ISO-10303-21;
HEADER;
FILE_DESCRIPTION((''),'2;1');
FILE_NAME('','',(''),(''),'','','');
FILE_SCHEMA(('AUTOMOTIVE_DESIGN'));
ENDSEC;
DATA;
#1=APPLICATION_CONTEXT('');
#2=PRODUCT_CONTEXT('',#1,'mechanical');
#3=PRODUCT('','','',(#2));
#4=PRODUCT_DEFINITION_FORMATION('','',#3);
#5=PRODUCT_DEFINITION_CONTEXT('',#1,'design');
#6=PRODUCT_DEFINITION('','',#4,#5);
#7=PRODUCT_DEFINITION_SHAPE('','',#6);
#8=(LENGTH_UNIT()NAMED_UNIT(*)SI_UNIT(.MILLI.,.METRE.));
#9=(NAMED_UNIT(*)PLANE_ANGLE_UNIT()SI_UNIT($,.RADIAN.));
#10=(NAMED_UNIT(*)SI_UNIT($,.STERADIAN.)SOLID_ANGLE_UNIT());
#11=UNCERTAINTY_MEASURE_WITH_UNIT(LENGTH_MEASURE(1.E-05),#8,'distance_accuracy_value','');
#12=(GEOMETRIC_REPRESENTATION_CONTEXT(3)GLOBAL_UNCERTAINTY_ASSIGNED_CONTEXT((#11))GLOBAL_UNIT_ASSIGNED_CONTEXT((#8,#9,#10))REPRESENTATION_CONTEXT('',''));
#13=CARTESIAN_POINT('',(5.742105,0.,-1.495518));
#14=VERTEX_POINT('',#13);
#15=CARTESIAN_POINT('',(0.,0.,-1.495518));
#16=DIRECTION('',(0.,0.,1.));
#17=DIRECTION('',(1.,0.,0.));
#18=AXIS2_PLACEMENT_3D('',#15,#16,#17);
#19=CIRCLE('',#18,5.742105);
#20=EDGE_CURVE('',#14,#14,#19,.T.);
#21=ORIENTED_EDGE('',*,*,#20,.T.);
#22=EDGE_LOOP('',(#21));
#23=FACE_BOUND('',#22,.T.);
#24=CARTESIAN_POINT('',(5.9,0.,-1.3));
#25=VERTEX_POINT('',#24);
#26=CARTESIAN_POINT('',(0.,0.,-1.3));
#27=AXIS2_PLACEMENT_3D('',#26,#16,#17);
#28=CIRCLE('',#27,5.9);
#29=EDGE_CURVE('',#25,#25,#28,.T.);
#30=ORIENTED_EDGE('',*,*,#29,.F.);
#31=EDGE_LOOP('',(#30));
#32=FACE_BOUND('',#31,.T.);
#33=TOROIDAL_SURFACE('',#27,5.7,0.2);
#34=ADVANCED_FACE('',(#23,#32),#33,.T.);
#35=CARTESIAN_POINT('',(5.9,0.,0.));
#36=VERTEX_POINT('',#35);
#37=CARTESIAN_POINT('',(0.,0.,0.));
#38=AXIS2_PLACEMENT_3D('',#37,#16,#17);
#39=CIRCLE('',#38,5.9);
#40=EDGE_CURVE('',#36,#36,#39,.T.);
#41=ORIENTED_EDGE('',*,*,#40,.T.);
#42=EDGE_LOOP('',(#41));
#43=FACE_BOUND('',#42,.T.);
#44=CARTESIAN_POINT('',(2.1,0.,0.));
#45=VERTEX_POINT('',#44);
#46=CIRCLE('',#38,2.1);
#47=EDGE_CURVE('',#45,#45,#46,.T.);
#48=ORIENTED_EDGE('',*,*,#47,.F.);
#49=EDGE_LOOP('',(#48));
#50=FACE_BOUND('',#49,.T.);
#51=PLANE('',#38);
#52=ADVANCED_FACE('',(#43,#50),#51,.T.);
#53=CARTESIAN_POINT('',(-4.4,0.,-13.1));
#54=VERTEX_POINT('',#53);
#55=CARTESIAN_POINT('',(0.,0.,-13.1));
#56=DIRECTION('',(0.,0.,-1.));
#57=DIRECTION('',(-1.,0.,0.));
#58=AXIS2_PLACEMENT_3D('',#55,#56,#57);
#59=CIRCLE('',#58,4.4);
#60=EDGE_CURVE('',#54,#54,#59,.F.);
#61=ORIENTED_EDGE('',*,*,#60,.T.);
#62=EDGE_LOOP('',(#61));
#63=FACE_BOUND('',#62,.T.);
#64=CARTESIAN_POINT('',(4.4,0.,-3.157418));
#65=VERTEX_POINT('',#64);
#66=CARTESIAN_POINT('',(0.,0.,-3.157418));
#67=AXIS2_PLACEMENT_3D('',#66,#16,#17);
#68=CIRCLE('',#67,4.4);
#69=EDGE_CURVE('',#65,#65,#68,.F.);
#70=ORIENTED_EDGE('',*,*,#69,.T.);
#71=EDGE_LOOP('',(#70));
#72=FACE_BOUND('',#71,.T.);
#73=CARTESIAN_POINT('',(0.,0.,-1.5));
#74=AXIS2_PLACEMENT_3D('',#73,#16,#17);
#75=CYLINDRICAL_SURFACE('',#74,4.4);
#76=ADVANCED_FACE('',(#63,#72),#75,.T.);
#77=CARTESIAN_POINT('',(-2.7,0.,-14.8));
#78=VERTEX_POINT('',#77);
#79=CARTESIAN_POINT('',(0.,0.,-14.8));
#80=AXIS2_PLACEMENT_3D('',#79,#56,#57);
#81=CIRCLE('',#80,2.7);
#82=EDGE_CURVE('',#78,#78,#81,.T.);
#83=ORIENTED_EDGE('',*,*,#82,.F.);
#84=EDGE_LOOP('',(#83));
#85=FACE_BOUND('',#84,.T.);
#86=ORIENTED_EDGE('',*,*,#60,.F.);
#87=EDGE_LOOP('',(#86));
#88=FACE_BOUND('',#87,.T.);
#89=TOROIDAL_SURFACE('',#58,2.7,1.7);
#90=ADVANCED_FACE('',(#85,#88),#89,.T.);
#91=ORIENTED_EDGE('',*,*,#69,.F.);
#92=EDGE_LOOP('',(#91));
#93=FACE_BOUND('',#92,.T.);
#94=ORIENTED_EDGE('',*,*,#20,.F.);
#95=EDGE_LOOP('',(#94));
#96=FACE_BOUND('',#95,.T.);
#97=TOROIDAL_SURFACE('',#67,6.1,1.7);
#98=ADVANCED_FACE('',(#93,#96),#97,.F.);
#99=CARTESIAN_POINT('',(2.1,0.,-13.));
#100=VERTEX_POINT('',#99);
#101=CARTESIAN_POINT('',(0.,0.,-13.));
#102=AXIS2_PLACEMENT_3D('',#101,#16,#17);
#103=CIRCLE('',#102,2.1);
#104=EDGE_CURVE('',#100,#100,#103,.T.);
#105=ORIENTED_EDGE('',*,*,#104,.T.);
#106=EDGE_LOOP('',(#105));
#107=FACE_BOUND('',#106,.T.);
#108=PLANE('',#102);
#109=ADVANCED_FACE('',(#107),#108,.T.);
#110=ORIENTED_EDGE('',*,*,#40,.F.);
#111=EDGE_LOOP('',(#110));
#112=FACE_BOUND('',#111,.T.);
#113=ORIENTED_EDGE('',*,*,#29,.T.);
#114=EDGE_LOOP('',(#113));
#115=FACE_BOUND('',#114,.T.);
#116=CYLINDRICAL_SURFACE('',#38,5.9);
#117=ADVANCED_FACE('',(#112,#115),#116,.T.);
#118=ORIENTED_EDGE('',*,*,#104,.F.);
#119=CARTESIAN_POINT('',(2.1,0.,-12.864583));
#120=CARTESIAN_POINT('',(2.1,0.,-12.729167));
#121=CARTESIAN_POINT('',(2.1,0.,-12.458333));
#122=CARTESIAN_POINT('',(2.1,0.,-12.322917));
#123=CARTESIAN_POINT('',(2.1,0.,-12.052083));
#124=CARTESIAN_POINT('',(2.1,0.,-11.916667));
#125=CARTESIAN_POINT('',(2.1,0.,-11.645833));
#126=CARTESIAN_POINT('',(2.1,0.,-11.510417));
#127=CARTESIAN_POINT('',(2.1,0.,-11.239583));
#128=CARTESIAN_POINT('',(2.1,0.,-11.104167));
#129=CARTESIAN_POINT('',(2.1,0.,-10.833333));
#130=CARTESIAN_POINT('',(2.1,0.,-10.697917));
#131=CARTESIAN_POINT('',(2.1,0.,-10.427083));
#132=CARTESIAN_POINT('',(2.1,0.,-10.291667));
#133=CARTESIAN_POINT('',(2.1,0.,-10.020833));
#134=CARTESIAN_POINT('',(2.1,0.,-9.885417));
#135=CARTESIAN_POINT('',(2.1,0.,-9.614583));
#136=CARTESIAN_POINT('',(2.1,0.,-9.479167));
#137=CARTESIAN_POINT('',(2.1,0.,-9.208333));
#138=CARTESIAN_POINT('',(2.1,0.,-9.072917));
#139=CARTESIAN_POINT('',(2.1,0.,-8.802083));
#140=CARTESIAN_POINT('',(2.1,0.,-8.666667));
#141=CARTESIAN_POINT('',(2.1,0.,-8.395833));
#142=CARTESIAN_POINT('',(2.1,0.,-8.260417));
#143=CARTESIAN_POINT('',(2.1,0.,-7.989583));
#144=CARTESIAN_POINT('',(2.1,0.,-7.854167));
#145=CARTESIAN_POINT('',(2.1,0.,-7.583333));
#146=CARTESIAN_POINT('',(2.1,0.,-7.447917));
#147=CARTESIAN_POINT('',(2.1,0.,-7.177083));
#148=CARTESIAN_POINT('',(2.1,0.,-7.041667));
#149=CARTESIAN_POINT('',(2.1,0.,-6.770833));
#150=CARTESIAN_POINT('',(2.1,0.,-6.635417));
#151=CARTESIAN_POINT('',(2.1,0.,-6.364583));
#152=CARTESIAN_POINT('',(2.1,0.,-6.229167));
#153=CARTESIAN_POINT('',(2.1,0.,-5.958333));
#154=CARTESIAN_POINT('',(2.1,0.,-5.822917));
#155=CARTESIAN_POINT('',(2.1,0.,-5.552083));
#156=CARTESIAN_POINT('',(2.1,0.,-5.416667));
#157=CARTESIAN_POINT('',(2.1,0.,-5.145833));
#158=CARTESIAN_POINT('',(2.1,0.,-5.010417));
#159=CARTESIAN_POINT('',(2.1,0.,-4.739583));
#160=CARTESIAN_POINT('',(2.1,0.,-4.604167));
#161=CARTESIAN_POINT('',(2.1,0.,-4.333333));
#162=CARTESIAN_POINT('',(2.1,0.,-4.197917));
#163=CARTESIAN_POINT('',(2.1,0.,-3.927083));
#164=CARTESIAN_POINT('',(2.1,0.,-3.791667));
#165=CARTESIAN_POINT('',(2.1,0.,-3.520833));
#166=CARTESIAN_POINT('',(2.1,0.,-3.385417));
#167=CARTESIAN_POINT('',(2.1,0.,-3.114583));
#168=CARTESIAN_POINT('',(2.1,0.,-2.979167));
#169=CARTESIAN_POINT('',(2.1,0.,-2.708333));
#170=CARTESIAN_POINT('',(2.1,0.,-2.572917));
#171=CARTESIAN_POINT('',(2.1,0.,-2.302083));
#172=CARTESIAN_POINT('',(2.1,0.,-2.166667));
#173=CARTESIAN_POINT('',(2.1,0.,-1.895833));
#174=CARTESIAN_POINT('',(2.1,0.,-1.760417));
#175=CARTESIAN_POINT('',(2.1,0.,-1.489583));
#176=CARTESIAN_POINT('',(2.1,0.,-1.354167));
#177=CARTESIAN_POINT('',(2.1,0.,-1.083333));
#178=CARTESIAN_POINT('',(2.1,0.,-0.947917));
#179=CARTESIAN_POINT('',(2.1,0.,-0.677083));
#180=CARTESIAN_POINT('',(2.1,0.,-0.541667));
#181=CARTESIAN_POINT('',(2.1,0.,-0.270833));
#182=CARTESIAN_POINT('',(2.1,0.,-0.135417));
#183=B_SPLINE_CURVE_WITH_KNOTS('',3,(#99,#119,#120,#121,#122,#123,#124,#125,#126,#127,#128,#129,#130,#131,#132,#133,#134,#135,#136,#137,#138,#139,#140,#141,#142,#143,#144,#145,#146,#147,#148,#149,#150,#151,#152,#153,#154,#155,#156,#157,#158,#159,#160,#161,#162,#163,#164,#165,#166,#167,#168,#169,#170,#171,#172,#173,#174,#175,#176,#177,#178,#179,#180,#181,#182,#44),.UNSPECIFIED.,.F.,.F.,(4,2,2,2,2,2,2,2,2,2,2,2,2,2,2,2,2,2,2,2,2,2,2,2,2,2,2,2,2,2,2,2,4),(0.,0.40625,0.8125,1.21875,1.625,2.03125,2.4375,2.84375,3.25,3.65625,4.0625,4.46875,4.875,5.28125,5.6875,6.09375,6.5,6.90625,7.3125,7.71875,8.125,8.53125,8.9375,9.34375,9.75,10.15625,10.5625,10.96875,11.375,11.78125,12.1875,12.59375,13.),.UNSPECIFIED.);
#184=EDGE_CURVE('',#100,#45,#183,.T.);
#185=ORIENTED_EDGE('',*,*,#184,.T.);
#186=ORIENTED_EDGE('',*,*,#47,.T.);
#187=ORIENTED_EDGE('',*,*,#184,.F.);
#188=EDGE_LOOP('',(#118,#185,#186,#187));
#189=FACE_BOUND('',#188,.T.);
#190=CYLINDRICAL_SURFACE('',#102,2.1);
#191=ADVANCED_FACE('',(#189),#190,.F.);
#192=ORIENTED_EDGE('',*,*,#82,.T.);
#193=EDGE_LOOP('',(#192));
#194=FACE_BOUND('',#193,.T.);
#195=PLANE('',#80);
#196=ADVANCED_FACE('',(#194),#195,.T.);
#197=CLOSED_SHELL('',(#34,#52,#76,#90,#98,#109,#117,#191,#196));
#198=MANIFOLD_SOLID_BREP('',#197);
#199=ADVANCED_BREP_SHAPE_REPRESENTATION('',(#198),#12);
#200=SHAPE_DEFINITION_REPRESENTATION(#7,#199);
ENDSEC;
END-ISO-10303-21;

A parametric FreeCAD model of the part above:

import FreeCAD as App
import Part
import Sketcher

V = App.Vector
Q = App.Units.Quantity


def edges_at(feature, points):
    """Names of the edges that pass closest to the given points."""
    edges = feature.Shape.Edges
    near = lambda p: min(range(len(edges)), key=lambda i: edges[i].distToShape(Part.Vertex(*p))[0])
    return sorted({f"Edge{near(p) + 1}" for p in points})


def add_polygon(sketch, points):
    """Adds a closed chain of lines whose ends are joined by coincident constraints."""
    first, n = sketch.GeometryCount, len(points)
    for a, b in zip(points, points[1:] + points[:1]):
        sketch.addGeometry(Part.LineSegment(App.Vector(*a, 0), App.Vector(*b, 0)), False)
    for i in range(n):
        sketch.addConstraint(Sketcher.Constraint("Coincident", first + i, 2, first + (i + 1) % n, 1))

doc = App.newDocument("Part")
body = doc.addObject("PartDesign::Body", "Body")

# Sketch on XZ plane
sketch1 = doc.addObject("Sketcher::SketchObject", "Sketch")
body.addObject(sketch1)
sketch1.AttachmentSupport = (doc.XZ_Plane, [""])
sketch1.MapMode = "FlatFace"
add_polygon(sketch1, [(0, -14.8), (0, 0), (5.9, 0), (5.9, -14.8)])  # lines 0-3
sketch1.addConstraint([
    Sketcher.Constraint("Vertical", 0),
    Sketcher.Constraint("Horizontal", 1),
    Sketcher.Constraint("Vertical", 2),
    Sketcher.Constraint("Horizontal", 3),
    Sketcher.Constraint("Coincident", 0, 2, -1, 1),
    Sketcher.Constraint("DistanceX", 1, 1, 1, 2, Q("5.9 mm")),
    Sketcher.Constraint("DistanceY", 0, 1, 0, 2, Q("14.8 mm")),
])
revolution = doc.addObject("PartDesign::Revolution", "Revolution")
body.addObject(revolution)
revolution.Profile = sketch1
revolution.ReferenceAxis = (sketch1, ["V_Axis"])
revolution.Angle = 360

# Sketch on XY plane
sketch2 = doc.addObject("Sketcher::SketchObject", "Sketch001")
body.addObject(sketch2)
sketch2.AttachmentSupport = (doc.XY_Plane, [""])
sketch2.MapMode = "FlatFace"
sketch2.addGeometry(Part.Circle(V(0, 0, 0), V(0, 0, 1), 2.1), False)
sketch2.addConstraint([
    Sketcher.Constraint("Coincident", 0, 3, -1, 1),
    Sketcher.Constraint("Diameter", 0, Q("4.2 mm")),
])
pocket1 = doc.addObject("PartDesign::Pocket", "Pocket")
body.addObject(pocket1)
pocket1.Profile = sketch2
pocket1.Length = 13

# Sketch on XZ plane
sketch3 = doc.addObject("Sketcher::SketchObject", "Sketch002")
body.addObject(sketch3)
sketch3.AttachmentSupport = (doc.XZ_Plane, [""])
sketch3.MapMode = "FlatFace"
add_polygon(sketch3, [(4.4, -14.8), (4.4, -1.5), (5.9, -1.5), (5.9, -14.8)])  # lines 0-3
sketch3.addConstraint([
    Sketcher.Constraint("Vertical", 0),
    Sketcher.Constraint("Horizontal", 1),
    Sketcher.Constraint("Vertical", 2),
    Sketcher.Constraint("Horizontal", 3),
    Sketcher.Constraint("DistanceX", 1, 1, 1, 2, Q("1.5 mm")),
    Sketcher.Constraint("DistanceY", 0, 1, 0, 2, Q("13.3 mm")),
    Sketcher.Constraint("DistanceX", -1, 1, 0, 2, Q("4.4 mm")),
    Sketcher.Constraint("DistanceY", 0, 2, -1, 1, Q("1.5 mm")),
])
groove = doc.addObject("PartDesign::Groove", "Groove")
body.addObject(groove)
groove.Profile = sketch3
groove.ReferenceAxis = (sketch3, ["V_Axis"])
groove.Angle = 360
doc.recompute()

fillet = doc.addObject("PartDesign::Fillet", "Fillet")
body.addObject(fillet)
fillet.Base = (groove, edges_at(groove, [(-5.9, 0, -1.5)]))
fillet.Radius = 0.2
doc.recompute()

fillet2 = doc.addObject("PartDesign::Fillet", "Fillet001")
body.addObject(fillet2)
fillet2.Base = (fillet, edges_at(fillet, [(-4.4, 0, -14.8)]))
fillet2.Radius = 1.7
doc.recompute()

fillet3 = doc.addObject("PartDesign::Fillet", "Fillet002")
body.addObject(fillet3)
fillet3.Base = (fillet2, edges_at(fillet2, [(-4.4, 0, -1.5)]))
fillet3.Radius = 1.7

doc.recompute()
